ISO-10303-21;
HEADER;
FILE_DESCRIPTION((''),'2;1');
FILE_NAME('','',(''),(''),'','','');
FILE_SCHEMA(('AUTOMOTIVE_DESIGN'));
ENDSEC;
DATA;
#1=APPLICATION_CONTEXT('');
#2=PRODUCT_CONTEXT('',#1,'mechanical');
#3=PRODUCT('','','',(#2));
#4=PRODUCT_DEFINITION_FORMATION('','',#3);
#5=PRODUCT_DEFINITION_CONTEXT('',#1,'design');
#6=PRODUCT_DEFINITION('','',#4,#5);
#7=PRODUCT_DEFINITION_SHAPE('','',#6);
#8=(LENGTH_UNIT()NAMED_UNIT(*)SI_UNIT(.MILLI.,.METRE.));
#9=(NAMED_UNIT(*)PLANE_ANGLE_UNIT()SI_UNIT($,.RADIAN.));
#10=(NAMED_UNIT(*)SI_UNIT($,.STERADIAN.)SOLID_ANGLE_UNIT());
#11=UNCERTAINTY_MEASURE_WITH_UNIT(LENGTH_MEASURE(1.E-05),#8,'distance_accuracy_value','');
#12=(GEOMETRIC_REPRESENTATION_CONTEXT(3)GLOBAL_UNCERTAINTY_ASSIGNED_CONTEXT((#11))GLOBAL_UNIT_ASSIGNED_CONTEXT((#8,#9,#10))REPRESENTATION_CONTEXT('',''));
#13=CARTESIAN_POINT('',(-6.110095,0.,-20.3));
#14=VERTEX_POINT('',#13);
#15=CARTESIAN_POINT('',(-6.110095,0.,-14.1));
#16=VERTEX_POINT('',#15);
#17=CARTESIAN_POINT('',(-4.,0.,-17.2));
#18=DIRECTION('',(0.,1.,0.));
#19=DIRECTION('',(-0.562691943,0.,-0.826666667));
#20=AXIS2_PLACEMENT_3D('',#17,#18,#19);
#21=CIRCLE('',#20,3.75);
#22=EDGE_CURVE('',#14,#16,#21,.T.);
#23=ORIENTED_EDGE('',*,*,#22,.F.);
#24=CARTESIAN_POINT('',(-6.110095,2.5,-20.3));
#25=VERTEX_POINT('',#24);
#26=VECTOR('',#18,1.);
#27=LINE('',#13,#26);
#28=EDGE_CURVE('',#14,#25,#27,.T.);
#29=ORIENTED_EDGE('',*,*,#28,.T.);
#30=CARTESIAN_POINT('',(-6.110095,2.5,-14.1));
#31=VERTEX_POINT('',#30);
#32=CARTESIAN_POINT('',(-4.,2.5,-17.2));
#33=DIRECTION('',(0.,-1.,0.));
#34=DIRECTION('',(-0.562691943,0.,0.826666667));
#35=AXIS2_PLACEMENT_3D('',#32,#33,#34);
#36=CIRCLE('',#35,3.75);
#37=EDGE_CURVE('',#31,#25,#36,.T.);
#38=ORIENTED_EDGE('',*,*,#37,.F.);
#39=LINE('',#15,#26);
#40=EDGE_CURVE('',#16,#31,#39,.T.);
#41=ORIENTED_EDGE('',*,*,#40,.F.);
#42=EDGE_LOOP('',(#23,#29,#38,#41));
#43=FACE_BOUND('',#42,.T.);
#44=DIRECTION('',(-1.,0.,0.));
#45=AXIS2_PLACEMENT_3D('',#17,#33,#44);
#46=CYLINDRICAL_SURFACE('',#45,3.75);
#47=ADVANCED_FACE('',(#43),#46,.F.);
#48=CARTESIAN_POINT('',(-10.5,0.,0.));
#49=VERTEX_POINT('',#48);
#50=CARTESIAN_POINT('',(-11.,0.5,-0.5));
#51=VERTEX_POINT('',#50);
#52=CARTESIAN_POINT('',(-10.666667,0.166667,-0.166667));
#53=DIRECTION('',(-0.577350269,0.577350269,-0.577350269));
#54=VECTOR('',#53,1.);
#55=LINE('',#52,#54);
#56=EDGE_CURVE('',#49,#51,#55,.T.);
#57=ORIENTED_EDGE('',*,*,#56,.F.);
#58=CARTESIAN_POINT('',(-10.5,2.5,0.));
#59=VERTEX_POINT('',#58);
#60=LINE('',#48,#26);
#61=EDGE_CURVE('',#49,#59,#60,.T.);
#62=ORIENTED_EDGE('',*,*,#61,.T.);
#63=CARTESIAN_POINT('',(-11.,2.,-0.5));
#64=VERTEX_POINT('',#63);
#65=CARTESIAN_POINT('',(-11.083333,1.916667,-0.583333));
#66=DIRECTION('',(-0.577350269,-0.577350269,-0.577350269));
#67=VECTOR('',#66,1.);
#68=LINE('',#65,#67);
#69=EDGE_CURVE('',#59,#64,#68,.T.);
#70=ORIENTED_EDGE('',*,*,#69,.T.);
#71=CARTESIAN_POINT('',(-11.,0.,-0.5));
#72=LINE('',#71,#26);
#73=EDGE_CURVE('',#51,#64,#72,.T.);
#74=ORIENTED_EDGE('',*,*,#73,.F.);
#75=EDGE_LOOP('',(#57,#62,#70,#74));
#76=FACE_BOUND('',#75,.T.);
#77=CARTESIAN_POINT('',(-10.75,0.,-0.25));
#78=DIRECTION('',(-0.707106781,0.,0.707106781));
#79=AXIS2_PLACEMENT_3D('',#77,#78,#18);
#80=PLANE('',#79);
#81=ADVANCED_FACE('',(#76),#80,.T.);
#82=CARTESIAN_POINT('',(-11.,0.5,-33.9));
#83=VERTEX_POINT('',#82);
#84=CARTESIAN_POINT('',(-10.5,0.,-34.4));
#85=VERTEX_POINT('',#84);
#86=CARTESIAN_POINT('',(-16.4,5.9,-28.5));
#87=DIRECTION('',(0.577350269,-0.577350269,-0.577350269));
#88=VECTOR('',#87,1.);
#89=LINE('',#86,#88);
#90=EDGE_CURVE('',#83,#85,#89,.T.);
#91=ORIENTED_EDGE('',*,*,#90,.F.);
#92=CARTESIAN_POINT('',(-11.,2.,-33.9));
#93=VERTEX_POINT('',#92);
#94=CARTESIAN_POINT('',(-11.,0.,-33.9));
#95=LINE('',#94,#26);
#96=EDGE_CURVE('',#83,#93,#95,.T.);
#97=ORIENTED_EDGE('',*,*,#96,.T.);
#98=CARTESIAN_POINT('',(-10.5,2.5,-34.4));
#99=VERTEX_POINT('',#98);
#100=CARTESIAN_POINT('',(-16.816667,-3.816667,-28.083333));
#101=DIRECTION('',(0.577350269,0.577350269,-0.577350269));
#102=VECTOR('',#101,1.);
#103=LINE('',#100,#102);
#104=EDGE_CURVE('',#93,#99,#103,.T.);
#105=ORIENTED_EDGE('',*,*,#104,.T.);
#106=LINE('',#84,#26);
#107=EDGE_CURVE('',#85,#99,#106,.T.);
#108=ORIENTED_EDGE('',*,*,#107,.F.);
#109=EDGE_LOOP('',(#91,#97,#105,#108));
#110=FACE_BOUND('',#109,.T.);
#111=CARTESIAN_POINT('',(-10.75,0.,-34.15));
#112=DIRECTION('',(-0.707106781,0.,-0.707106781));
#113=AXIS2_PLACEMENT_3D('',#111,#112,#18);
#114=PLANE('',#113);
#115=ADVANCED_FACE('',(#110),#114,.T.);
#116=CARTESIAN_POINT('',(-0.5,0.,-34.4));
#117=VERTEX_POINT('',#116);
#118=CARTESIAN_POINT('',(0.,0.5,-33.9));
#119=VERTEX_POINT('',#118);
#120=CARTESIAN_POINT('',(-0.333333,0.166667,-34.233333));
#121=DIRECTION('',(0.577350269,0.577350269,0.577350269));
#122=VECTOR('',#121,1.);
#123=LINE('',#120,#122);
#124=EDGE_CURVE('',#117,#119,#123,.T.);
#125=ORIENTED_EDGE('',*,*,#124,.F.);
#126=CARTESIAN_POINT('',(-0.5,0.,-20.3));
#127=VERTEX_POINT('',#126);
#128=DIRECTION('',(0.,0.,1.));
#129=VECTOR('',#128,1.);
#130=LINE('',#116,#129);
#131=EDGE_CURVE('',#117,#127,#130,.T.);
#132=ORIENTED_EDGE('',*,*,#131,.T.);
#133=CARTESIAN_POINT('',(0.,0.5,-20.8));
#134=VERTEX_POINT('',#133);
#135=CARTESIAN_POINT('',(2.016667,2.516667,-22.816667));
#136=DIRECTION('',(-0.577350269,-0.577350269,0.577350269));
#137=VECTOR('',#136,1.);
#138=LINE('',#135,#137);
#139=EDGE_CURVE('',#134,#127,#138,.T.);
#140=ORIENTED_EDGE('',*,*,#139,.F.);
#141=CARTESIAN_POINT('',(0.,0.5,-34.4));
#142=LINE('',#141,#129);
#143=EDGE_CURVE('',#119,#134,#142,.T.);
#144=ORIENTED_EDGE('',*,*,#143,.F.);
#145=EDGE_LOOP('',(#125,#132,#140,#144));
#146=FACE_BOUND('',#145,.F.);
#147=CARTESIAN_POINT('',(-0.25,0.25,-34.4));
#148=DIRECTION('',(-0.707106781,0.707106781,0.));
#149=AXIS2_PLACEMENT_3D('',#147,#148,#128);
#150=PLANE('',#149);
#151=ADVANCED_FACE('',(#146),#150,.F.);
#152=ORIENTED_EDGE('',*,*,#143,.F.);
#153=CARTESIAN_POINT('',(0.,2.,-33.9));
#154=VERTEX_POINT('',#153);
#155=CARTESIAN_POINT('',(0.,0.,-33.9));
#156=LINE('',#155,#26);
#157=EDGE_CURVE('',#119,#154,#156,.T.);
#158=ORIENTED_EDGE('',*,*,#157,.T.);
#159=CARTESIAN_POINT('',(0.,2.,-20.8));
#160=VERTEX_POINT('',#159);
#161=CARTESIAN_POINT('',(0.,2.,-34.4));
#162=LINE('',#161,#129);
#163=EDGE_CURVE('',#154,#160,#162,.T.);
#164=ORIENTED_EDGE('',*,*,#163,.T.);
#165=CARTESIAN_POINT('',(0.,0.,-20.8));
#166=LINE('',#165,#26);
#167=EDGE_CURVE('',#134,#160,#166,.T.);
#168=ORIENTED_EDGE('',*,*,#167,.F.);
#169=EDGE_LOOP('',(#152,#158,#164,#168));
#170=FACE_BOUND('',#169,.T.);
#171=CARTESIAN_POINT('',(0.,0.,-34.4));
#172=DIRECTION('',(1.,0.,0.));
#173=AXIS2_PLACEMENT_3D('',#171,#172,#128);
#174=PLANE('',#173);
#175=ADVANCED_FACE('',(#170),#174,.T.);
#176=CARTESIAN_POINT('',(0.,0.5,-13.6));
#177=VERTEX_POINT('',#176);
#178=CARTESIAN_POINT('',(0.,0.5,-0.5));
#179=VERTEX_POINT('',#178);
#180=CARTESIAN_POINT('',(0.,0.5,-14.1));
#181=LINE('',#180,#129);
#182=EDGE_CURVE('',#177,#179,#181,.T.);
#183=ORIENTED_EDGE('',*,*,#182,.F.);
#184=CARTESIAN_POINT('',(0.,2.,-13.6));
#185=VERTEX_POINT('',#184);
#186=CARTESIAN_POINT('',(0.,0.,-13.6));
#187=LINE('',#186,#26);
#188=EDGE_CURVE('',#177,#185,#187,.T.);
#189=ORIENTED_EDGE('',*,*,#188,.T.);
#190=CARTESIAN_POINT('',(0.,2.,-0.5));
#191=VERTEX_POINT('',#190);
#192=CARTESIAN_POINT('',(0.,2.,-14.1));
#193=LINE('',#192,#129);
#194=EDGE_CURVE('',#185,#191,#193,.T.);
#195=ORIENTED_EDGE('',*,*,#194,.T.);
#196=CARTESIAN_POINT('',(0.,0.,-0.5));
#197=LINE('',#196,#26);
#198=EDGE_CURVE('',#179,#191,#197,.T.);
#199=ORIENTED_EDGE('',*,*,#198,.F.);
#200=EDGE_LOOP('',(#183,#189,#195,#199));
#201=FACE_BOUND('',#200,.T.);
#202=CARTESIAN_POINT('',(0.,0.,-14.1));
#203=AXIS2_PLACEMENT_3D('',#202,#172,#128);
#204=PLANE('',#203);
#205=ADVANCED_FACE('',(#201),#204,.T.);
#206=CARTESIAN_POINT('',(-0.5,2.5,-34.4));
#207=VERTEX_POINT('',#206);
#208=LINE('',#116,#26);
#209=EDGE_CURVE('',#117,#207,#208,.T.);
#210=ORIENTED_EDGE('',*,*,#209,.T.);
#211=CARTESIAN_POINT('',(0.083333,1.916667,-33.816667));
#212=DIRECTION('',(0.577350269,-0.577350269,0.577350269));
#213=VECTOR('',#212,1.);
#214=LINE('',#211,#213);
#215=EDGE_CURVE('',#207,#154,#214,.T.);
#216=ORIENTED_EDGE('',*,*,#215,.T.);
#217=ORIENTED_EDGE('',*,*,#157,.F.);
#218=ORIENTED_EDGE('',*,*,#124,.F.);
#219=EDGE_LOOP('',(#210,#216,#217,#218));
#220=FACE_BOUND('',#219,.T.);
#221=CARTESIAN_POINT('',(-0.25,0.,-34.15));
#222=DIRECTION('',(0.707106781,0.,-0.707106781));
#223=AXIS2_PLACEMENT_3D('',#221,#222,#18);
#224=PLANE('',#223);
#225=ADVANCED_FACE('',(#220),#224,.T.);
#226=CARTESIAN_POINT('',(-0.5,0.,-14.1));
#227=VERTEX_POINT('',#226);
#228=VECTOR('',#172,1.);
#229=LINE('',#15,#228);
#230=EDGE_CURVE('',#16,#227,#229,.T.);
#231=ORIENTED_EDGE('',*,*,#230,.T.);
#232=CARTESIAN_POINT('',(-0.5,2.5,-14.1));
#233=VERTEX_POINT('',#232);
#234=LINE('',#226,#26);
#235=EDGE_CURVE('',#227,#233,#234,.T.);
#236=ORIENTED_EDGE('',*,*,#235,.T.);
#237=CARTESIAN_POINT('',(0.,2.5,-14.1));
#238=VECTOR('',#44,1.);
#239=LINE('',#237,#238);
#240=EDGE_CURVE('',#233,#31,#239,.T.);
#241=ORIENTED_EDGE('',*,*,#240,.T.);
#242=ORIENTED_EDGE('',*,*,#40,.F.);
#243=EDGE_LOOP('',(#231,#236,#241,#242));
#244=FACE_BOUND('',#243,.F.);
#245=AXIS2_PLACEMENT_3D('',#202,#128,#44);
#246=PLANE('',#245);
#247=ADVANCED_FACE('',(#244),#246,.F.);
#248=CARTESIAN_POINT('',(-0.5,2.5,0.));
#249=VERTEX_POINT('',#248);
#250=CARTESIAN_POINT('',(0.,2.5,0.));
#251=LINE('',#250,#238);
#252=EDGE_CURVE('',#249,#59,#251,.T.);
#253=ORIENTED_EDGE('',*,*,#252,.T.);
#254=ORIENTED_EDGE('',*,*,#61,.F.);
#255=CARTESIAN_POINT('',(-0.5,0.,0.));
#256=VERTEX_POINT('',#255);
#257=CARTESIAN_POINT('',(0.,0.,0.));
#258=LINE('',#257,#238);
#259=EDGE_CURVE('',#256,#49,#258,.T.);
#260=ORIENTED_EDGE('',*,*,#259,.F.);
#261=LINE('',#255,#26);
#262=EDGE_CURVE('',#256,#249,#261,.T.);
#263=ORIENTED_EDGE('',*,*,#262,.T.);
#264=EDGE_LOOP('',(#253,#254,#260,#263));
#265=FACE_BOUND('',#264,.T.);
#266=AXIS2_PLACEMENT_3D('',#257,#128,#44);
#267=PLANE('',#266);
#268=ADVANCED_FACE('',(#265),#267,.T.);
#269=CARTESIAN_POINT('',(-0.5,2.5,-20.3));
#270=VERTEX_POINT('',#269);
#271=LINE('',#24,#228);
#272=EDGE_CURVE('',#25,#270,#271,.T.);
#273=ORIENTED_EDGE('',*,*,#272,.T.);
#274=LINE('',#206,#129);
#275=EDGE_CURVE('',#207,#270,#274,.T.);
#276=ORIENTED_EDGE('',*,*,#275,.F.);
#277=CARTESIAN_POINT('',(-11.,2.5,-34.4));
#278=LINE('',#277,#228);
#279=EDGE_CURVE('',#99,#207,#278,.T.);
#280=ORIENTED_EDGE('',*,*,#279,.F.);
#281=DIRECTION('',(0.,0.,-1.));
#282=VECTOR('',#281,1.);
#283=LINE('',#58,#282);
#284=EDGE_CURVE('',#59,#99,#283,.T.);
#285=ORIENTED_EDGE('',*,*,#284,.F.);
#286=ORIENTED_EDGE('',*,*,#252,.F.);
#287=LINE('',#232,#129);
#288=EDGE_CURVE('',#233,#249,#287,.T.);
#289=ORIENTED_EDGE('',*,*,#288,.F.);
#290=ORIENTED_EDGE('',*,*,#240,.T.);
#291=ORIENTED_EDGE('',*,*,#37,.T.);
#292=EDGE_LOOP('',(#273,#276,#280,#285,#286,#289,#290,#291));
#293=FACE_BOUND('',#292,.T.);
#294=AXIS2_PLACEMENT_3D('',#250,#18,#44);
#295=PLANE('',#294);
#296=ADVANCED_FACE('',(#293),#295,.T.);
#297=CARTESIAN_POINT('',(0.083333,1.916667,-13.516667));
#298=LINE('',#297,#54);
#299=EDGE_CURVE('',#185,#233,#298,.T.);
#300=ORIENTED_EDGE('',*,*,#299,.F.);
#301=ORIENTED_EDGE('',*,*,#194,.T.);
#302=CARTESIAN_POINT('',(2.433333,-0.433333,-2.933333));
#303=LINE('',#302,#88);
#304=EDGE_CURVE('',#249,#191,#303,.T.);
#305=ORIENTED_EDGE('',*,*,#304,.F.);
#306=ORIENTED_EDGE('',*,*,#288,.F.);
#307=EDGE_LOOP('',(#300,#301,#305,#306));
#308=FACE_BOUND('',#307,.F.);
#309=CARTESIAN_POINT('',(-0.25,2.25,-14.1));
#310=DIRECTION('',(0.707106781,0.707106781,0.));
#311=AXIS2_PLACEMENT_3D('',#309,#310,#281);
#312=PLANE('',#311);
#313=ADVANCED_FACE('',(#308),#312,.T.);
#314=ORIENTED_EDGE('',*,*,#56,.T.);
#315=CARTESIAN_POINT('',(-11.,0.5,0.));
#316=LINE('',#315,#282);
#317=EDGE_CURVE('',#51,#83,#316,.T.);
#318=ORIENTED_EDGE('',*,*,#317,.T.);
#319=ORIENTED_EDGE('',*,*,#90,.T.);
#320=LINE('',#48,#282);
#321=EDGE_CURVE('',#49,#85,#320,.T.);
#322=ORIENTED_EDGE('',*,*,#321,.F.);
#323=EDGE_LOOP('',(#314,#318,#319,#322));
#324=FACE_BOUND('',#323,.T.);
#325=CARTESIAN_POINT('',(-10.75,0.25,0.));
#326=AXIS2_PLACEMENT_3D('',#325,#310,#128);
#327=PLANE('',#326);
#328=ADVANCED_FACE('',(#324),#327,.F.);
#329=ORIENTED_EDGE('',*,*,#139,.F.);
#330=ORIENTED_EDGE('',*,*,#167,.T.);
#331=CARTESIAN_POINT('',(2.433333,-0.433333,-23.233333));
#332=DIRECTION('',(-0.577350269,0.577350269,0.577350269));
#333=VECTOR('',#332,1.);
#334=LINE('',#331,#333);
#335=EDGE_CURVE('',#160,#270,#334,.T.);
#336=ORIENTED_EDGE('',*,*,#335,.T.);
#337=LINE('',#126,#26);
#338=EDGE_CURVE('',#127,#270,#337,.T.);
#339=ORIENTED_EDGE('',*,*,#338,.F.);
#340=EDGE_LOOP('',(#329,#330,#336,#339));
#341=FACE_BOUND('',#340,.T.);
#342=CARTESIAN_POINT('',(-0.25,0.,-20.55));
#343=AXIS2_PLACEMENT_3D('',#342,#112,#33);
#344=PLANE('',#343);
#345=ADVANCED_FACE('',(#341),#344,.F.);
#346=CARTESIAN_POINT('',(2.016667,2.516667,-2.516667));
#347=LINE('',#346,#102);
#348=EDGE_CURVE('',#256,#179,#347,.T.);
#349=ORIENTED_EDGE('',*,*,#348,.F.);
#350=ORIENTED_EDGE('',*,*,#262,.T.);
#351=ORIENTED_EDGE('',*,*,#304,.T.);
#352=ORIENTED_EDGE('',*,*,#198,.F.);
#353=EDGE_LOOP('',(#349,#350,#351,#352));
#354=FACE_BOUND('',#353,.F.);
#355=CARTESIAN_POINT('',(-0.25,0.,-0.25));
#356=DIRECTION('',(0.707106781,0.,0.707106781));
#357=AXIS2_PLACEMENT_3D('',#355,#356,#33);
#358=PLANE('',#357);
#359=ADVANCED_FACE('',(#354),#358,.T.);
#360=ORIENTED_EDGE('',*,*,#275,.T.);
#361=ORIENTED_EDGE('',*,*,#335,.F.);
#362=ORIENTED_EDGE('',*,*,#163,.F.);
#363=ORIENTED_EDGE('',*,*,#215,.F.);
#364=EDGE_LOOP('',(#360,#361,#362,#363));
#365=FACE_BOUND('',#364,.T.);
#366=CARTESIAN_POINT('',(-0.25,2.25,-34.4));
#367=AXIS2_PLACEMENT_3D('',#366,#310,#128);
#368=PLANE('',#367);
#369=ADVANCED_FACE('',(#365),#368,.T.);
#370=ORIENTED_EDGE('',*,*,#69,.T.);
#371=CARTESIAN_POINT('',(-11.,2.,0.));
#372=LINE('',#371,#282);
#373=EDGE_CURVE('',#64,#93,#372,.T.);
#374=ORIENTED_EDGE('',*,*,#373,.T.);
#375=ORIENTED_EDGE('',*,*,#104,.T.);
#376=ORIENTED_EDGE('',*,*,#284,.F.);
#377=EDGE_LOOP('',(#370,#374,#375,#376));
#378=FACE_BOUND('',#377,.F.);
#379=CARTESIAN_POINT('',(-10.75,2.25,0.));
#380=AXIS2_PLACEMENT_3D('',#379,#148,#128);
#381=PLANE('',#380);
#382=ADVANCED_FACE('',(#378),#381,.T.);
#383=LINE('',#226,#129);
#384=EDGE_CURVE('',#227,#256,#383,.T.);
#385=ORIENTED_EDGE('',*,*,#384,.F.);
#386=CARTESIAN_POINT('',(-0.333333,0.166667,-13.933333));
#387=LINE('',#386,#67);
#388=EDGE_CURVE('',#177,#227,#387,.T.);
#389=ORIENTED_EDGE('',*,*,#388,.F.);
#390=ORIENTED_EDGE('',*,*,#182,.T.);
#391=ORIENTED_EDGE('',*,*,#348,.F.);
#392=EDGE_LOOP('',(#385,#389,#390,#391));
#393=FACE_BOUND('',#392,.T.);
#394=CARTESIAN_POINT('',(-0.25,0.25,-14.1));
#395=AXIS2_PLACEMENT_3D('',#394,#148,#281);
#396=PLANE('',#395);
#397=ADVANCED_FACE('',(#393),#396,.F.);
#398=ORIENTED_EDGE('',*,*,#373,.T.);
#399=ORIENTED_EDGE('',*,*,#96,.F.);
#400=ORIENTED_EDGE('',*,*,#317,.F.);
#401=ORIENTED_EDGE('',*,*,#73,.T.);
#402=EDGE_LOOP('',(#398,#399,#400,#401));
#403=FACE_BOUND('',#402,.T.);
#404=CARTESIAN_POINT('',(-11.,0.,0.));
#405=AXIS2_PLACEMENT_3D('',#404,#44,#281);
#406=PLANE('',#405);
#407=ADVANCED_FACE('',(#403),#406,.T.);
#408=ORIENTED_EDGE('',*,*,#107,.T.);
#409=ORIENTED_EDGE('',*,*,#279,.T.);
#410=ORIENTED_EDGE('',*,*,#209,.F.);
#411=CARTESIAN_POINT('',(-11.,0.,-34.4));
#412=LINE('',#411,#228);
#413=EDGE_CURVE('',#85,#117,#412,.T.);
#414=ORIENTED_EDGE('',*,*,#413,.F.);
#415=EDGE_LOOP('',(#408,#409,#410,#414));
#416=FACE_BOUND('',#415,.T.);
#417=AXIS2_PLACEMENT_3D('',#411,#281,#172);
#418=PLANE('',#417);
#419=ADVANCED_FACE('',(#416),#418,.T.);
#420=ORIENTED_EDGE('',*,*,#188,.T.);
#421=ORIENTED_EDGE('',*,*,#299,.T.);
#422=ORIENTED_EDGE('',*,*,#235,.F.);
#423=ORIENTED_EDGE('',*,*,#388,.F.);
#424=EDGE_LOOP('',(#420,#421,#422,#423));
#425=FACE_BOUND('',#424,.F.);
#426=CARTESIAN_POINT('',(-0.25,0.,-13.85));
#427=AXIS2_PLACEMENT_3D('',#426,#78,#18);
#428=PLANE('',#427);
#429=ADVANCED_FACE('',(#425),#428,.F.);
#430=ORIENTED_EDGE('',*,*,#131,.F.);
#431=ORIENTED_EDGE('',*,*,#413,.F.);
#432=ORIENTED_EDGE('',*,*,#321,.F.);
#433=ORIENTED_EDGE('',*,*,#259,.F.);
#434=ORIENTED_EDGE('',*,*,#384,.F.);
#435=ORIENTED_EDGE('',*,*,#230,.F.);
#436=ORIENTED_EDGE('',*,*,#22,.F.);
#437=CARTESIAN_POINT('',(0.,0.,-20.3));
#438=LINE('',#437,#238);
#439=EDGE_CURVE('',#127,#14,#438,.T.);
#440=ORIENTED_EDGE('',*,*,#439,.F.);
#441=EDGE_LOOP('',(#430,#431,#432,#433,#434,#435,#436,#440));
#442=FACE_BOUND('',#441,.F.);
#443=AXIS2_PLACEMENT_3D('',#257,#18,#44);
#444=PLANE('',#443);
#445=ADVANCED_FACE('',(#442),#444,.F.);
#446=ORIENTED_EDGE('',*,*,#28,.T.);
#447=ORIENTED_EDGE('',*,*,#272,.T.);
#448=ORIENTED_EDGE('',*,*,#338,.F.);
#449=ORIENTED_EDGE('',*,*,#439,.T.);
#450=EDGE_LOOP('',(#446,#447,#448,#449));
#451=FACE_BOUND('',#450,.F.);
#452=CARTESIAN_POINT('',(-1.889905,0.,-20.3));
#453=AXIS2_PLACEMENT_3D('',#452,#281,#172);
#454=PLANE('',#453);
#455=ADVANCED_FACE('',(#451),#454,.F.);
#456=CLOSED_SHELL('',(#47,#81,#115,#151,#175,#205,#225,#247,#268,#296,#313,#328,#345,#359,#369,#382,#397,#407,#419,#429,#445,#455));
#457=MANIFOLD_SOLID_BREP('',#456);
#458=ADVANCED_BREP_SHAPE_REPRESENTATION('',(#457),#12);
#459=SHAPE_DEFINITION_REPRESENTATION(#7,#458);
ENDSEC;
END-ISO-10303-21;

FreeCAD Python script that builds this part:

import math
import FreeCAD as App
import Part
import Sketcher

V = App.Vector
Q = App.Units.Quantity


def edges_at(feature, points):
    """Names of the edges that pass closest to the given points."""
    edges = feature.Shape.Edges
    near = lambda p: min(range(len(edges)), key=lambda i: edges[i].distToShape(Part.Vertex(*p))[0])
    return sorted({f"Edge{near(p) + 1}" for p in points})

doc = App.newDocument("Part")
body = doc.addObject("PartDesign::Body", "Body")

# Sketch on XZ plane
sketch1 = body.newObject("Sketcher::SketchObject", "Sketch")
sketch1.AttachmentSupport = (doc.getObject("XZ_Plane"), [""])
sketch1.MapMode = "FlatFace"
sketch1.addGeometry([
    Part.LineSegment(V(-11, 0, 0), V(0, 0, 0)),  # 0
    Part.LineSegment(V(0, 0, 0), V(0, -14.1, 0)),  # 1
    Part.LineSegment(V(0, -14.1, 0), V(-6.1, -14.1, 0)),  # 2
    Part.ArcOfCircle(Part.Circle(V(-4, -17.2, 0), V(0, 0, 1), 3.8), math.radians(124), math.radians(236)),  # 3
    Part.LineSegment(V(-6.1, -20.3, 0), V(0, -20.3, 0)),  # 4
    Part.LineSegment(V(0, -20.3, 0), V(0, -34.4, 0)),  # 5
    Part.LineSegment(V(0, -34.4, 0), V(-11, -34.4, 0)),  # 6
    Part.LineSegment(V(-11, -34.4, 0), V(-11, 0, 0)),  # 7
], False)
sketch1.addConstraint([
    Sketcher.Constraint("Coincident", 0, 2, 1, 1),
    Sketcher.Constraint("Coincident", 1, 2, 2, 1),
    Sketcher.Constraint("Coincident", 2, 2, 3, 1),
    Sketcher.Constraint("Coincident", 3, 2, 4, 1),
    Sketcher.Constraint("Coincident", 4, 2, 5, 1),
    Sketcher.Constraint("Coincident", 5, 2, 6, 1),
    Sketcher.Constraint("Coincident", 6, 2, 7, 1),
    Sketcher.Constraint("Coincident", 7, 2, 0, 1),
    Sketcher.Constraint("Horizontal", 0),
    Sketcher.Constraint("Vertical", 1),
    Sketcher.Constraint("Horizontal", 2),
    Sketcher.Constraint("Horizontal", 4),
    Sketcher.Constraint("Vertical", 5),
    Sketcher.Constraint("Horizontal", 6),
    Sketcher.Constraint("Vertical", 7),
    Sketcher.Constraint("Coincident", 0, 2, -1, 1),
    Sketcher.Constraint("PointOnObject", 4, 2, -2),
    Sketcher.Constraint("Vertical", 2, 2, 3, 2),
    Sketcher.Constraint("Equal", 1, 5),
    Sketcher.Constraint("DistanceX", 0, 1, 0, 2, Q("11 mm")),
    Sketcher.Constraint("Radius", 3, Q("3.75 mm")),
    Sketcher.Constraint("DistanceY", 7, 1, 7, 2, Q("34.4 mm")),
    Sketcher.Constraint("DistanceX", 6, 2, 3, 3, Q("7 mm")),
    Sketcher.Constraint("DistanceY", 3, 2, 2, 2, Q("6.2 mm")),
])
pad1 = body.newObject("PartDesign::Pad", "Pad")
pad1.Profile = sketch1
pad1.Length = 2.5
pad1.Reversed = True
doc.recompute()

chamfer = body.newObject("PartDesign::Chamfer", "Chamfer")
chamfer.Base = (pad1, edges_at(pad1, [
    (-11, 1.25, 0),
    (0, 1.25, 0),
    (0, 1.25, -34.4),
    (-11, 1.25, -34.4),
    (0, 1.25, -20.3),
    (0, 1.25, -14.1),
    (-11, 2.5, -17.2),
    (-11, 0, -17.2),
    (0, 2.5, -7.05),
    (0, 0, -7.05),
    (0, 2.5, -27.35),
    (0, 0, -27.35),
]))
chamfer.Size = 0.5

doc.recompute()
